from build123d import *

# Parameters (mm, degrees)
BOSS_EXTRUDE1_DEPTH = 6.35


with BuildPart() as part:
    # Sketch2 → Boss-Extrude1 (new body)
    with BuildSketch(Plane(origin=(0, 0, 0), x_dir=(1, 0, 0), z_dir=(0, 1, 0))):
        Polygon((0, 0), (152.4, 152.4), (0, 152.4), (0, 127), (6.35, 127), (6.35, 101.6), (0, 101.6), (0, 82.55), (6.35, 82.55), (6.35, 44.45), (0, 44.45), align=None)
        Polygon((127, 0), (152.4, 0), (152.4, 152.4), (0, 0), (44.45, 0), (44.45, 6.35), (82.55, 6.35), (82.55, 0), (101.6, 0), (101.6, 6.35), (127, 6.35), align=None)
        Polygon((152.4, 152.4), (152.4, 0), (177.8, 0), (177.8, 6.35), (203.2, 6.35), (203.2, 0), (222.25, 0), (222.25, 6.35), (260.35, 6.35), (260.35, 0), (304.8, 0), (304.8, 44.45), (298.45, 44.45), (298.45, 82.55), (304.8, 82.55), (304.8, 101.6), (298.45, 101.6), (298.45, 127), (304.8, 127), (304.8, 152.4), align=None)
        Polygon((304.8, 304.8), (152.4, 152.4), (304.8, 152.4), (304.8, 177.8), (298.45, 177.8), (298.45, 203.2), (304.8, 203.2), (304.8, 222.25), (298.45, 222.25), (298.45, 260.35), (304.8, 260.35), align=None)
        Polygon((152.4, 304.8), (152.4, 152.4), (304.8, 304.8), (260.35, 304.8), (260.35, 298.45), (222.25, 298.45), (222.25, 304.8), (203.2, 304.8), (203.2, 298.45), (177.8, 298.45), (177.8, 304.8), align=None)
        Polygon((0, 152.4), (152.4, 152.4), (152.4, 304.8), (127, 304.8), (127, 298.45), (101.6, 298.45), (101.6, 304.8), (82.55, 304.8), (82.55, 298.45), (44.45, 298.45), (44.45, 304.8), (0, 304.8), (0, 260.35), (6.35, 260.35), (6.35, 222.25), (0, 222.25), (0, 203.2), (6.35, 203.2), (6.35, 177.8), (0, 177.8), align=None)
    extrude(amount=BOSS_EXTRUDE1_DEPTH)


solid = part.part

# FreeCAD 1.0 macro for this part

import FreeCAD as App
import Part
import Sketcher
from FreeCAD import Vector
Q = App.Units.Quantity


def add_polygon(sketch, points):
    """Adds a closed chain of lines whose ends are joined by coincident constraints."""
    first, n = sketch.GeometryCount, len(points)
    for a, b in zip(points, points[1:] + points[:1]):
        sketch.addGeometry(Part.LineSegment(App.Vector(*a, 0), App.Vector(*b, 0)), False)
    for i in range(n):
        sketch.addConstraint(Sketcher.Constraint("Coincident", first + i, 2, first + (i + 1) % n, 1))

doc = App.newDocument("Part")
params = doc.addObject("Spreadsheet::Sheet", "Params")
for row, (alias, value) in enumerate([
    ("sketch1_width", "1 in"),
    ("sketch1_width2", "2 in"),
    ("sketch1_width3", "1.5 in"),
    ("sketch1_width4", "0.25 in"),
    ("sketch1_width5", "1.75 in"),
    ("pad1_length", "0.25 in"),
], start=1):
    params.set(f"A{row}", alias)
    params.set(f"B{row}", "=" + value)
    params.setAlias(f"B{row}", alias)

body = doc.addObject("PartDesign::Body", "Body")

# Sketch on XZ plane
sketch1 = body.newObject("Sketcher::SketchObject", "Sketch")
sketch1.AttachmentSupport = (doc.getObject("XZ_Plane"), [""])
sketch1.MapMode = "FlatFace"
add_polygon(sketch1, [(0, -127), (6.35, -127), (6.35, -101.6), (0, -101.6), (0, -82.55), (6.35, -82.55), (6.35, -44.45), (0, -44.45), (0, 0), (44.45, 0), (44.45, -6.35), (82.55, -6.35), (82.55, 0), (101.6, 0), (101.6, -6.35), (127, -6.35), (127, 0), (177.8, 0), (177.8, -6.35), (203.2, -6.35), (203.2, 0), (222.25, 0), (222.25, -6.35), (260.35, -6.35), (260.35, 0), (304.8, 0), (304.8, -44.45), (298.45, -44.45), (298.45, -82.55), (304.8, -82.55), (304.8, -101.6), (298.45, -101.6), (298.45, -127), (304.8, -127), (304.8, -177.8), (298.45, -177.8), (298.45, -203.2), (304.8, -203.2), (304.8, -222.25), (298.45, -222.25), (298.45, -260.35), (304.8, -260.35), (304.8, -304.8), (260.35, -304.8), (260.35, -298.45), (222.25, -298.45), (222.25, -304.8), (203.2, -304.8), (203.2, -298.45), (177.8, -298.45), (177.8, -304.8), (127, -304.8), (127, -298.45), (101.6, -298.45), (101.6, -304.8), (82.55, -304.8), (82.55, -298.45), (44.45, -298.45), (44.45, -304.8), (0, -304.8), (0, -260.35), (6.35, -260.35), (6.35, -222.25), (0, -222.25), (0, -203.2), (6.35, -203.2), (6.35, -177.8), (0, -177.8)])  # lines 0-67
sketch1.addConstraint([
    Sketcher.Constraint("Horizontal", 0),
    Sketcher.Constraint("Vertical", 1),
    Sketcher.Constraint("Horizontal", 2),
    Sketcher.Constraint("Vertical", 3),
    Sketcher.Constraint("Horizontal", 4),
    Sketcher.Constraint("Vertical", 5),
    Sketcher.Constraint("Horizontal", 6),
    Sketcher.Constraint("Vertical", 7),
    Sketcher.Constraint("Horizontal", 8),
    Sketcher.Constraint("Vertical", 9),
    Sketcher.Constraint("Horizontal", 10),
    Sketcher.Constraint("Vertical", 11),
    Sketcher.Constraint("Horizontal", 12),
    Sketcher.Constraint("Vertical", 13),
    Sketcher.Constraint("Horizontal", 14),
    Sketcher.Constraint("Vertical", 15),
    Sketcher.Constraint("Horizontal", 16),
    Sketcher.Constraint("Vertical", 17),
    Sketcher.Constraint("Horizontal", 18),
    Sketcher.Constraint("Vertical", 19),
    Sketcher.Constraint("Horizontal", 20),
    Sketcher.Constraint("Vertical", 21),
    Sketcher.Constraint("Horizontal", 22),
    Sketcher.Constraint("Vertical", 23),
    Sketcher.Constraint("Horizontal", 24),
    Sketcher.Constraint("Vertical", 25),
    Sketcher.Constraint("Horizontal", 26),
    Sketcher.Constraint("Vertical", 27),
    Sketcher.Constraint("Horizontal", 28),
    Sketcher.Constraint("Vertical", 29),
    Sketcher.Constraint("Horizontal", 30),
    Sketcher.Constraint("Vertical", 31),
    Sketcher.Constraint("Horizontal", 32),
    Sketcher.Constraint("Vertical", 33),
    Sketcher.Constraint("Horizontal", 34),
    Sketcher.Constraint("Vertical", 35),
    Sketcher.Constraint("Horizontal", 36),
    Sketcher.Constraint("Vertical", 37),
    Sketcher.Constraint("Horizontal", 38),
    Sketcher.Constraint("Vertical", 39),
    Sketcher.Constraint("Horizontal", 40),
    Sketcher.Constraint("Vertical", 41),
    Sketcher.Constraint("Horizontal", 42),
    Sketcher.Constraint("Vertical", 43),
    Sketcher.Constraint("Horizontal", 44),
    Sketcher.Constraint("Vertical", 45),
    Sketcher.Constraint("Horizontal", 46),
    Sketcher.Constraint("Vertical", 47),
    Sketcher.Constraint("Horizontal", 48),
    Sketcher.Constraint("Vertical", 49),
    Sketcher.Constraint("Horizontal", 50),
    Sketcher.Constraint("Vertical", 51),
    Sketcher.Constraint("Horizontal", 52),
    Sketcher.Constraint("Vertical", 53),
    Sketcher.Constraint("Horizontal", 54),
    Sketcher.Constraint("Vertical", 55),
    Sketcher.Constraint("Horizontal", 56),
    Sketcher.Constraint("Vertical", 57),
    Sketcher.Constraint("Horizontal", 58),
    Sketcher.Constraint("Vertical", 59),
    Sketcher.Constraint("Horizontal", 60),
    Sketcher.Constraint("Vertical", 61),
    Sketcher.Constraint("Horizontal", 62),
    Sketcher.Constraint("Vertical", 63),
    Sketcher.Constraint("Horizontal", 64),
    Sketcher.Constraint("Vertical", 65),
    Sketcher.Constraint("Horizontal", 66),
    Sketcher.Constraint("Vertical", 67),
    Sketcher.Constraint("Coincident", 7, 2, -1, 1),
    Sketcher.Constraint("PointOnObject", 2, 2, -2),
    Sketcher.Constraint("PointOnObject", 11, 2, -1),
    Sketcher.Constraint("PointOnObject", 15, 2, -1),
    Sketcher.Constraint("PointOnObject", 19, 2, -1),
    Sketcher.Constraint("PointOnObject", 23, 2, -1),
    Sketcher.Constraint("PointOnObject", 58, 2, -2),
    Sketcher.Constraint("PointOnObject", 62, 2, -2),
    Sketcher.Constraint("PointOnObject", 66, 2, -2),
    Sketcher.Constraint("Horizontal", 10, 2, 13, 2),
    Sketcher.Constraint("Horizontal", 14, 2, 17, 2),
    Sketcher.Constraint("Horizontal", 18, 2, 21, 2),
    Sketcher.Constraint("Horizontal", 6, 2, 25, 2),
    Sketcher.Constraint("Horizontal", 4, 2, 27, 2),
    Sketcher.Constraint("Horizontal", 2, 2, 29, 2),
    Sketcher.Constraint("Horizontal", 0, 2, 31, 2),
    Sketcher.Constraint("Horizontal", 42, 2, 45, 2),
    Sketcher.Constraint("Horizontal", 44, 2, 47, 2),
    Sketcher.Constraint("Horizontal", 46, 2, 49, 2),
    Sketcher.Constraint("Horizontal", 48, 2, 51, 2),
    Sketcher.Constraint("Horizontal", 50, 2, 53, 2),
    Sketcher.Constraint("Horizontal", 52, 2, 55, 2),
    Sketcher.Constraint("Horizontal", 54, 2, 57, 2),
    Sketcher.Constraint("Horizontal", 40, 2, 59, 2),
    Sketcher.Constraint("Horizontal", 38, 2, 61, 2),
    Sketcher.Constraint("Horizontal", 36, 2, 63, 2),
    Sketcher.Constraint("Horizontal", 34, 2, 65, 2),
    Sketcher.Constraint("Vertical", 1, 2, 4, 2),
    Sketcher.Constraint("Vertical", 25, 2, 28, 2),
    Sketcher.Constraint("Vertical", 27, 2, 30, 2),
    Sketcher.Constraint("Vertical", 29, 2, 32, 2),
    Sketcher.Constraint("Vertical", 31, 2, 34, 2),
    Sketcher.Constraint("Vertical", 33, 2, 36, 2),
    Sketcher.Constraint("Vertical", 35, 2, 38, 2),
    Sketcher.Constraint("Vertical", 37, 2, 40, 2),
    Sketcher.Constraint("Vertical", 23, 2, 42, 2),
    Sketcher.Constraint("Vertical", 21, 2, 44, 2),
    Sketcher.Constraint("Vertical", 19, 2, 46, 2),
    Sketcher.Constraint("Vertical", 17, 2, 48, 2),
    Sketcher.Constraint("Vertical", 15, 2, 50, 2),
    Sketcher.Constraint("Vertical", 13, 2, 52, 2),
    Sketcher.Constraint("Vertical", 11, 2, 54, 2),
    Sketcher.Constraint("Vertical", 9, 2, 56, 2),
    Sketcher.Constraint("Vertical", 5, 2, 60, 2),
    Sketcher.Constraint("Vertical", 61, 2, 64, 2),
    Sketcher.Constraint("Equal", 14, 18),
    Sketcher.Constraint("Equal", 12, 20),
    Sketcher.Constraint("Equal", 10, 22),
    Sketcher.Constraint("Equal", 8, 24),
    Sketcher.Constraint("Equal", 6, 26),
    Sketcher.Constraint("Equal", 52, 1),
    Sketcher.Constraint("Equal", 54, 3),
    Sketcher.Constraint("Equal", 56, 5),
    Sketcher.Constraint("Equal", 58, 7),
    Sketcher.Constraint("Equal", 66, 9),
    Sketcher.Constraint("Equal", 50, 33),
    Sketcher.Constraint("Equal", 31, 35),
    Sketcher.Constraint("Equal", 29, 37),
    Sketcher.Constraint("Equal", 27, 39),
    Sketcher.Constraint("Equal", 25, 41),
    Sketcher.Constraint("Equal", 23, 43),
    Sketcher.Constraint("DistanceX", 14, 1, 14, 2, Q("1 in")),
    Sketcher.Constraint("DistanceX", 16, 1, 16, 2, Q("2 in")),
    Sketcher.Constraint("DistanceX", 10, 1, 10, 2, Q("1.5 in")),
    Sketcher.Constraint("DistanceY", 0, 2, -1, 1, Q("5 in")),
    Sketcher.Constraint("DistanceX", 0, 1, 0, 2, Q("0.25 in")),
    Sketcher.Constraint("DistanceX", 8, 1, 8, 2, Q("1.75 in")),
])
sketch1.setExpression("Constraints[197]", "Params.sketch1_width")
sketch1.setExpression("Constraints[198]", "Params.sketch1_width2")
sketch1.setExpression("Constraints[199]", "Params.sketch1_width3")
sketch1.setExpression("Constraints[201]", "Params.sketch1_width4")
sketch1.setExpression("Constraints[202]", "Params.sketch1_width5")
pad1 = body.newObject("PartDesign::Pad", "Pad")
pad1.Profile = sketch1
pad1.setExpression("Length", "Params.pad1_length")
pad1.Reversed = True

doc.recompute()
